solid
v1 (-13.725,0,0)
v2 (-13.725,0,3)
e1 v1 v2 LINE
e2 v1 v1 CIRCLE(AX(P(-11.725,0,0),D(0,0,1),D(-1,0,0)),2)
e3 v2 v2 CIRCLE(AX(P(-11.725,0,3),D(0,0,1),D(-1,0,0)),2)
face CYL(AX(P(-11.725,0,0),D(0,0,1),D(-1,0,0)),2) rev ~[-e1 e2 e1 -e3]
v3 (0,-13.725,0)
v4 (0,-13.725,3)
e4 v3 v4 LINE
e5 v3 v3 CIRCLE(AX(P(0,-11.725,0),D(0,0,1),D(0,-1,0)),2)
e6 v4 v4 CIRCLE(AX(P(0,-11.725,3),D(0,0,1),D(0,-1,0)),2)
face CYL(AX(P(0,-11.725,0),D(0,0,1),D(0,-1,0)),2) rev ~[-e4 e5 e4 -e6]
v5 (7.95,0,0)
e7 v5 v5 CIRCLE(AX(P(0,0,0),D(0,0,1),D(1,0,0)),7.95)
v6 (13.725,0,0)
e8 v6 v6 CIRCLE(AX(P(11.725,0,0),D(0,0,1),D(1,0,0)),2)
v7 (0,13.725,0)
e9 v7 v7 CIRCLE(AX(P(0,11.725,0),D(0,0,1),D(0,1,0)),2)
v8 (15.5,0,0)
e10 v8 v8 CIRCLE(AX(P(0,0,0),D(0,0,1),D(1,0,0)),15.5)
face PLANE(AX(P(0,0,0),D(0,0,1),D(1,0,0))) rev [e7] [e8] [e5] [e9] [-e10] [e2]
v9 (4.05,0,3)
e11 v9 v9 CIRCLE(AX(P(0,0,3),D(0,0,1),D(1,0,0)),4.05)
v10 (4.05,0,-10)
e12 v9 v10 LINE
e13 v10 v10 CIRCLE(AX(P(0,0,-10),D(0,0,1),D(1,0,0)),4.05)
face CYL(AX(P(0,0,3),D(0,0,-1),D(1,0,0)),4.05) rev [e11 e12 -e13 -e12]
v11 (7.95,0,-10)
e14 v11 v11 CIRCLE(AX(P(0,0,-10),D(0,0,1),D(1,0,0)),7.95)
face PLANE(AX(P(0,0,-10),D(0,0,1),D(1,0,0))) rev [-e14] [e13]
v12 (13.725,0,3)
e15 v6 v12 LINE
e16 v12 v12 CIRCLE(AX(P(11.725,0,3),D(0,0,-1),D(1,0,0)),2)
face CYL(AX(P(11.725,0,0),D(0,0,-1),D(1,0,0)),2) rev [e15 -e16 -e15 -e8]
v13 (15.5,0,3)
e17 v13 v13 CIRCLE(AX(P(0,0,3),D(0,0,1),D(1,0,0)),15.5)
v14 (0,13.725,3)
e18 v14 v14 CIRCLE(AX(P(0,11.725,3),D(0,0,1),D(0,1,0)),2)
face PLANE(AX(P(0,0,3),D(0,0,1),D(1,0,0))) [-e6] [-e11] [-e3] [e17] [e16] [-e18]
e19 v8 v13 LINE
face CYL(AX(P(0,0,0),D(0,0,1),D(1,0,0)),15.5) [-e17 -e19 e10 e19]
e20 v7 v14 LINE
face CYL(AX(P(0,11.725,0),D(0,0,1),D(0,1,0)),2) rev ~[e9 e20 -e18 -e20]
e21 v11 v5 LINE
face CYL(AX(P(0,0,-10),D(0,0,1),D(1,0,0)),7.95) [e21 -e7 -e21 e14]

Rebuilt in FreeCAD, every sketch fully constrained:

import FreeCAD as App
import Part
import Sketcher
from FreeCAD import Vector
Q = App.Units.Quantity


def add_polygon(sketch, points):
    """Adds a closed chain of lines whose ends are joined by coincident constraints."""
    first, n = sketch.GeometryCount, len(points)
    for a, b in zip(points, points[1:] + points[:1]):
        sketch.addGeometry(Part.LineSegment(App.Vector(*a, 0), App.Vector(*b, 0)), False)
    for i in range(n):
        sketch.addConstraint(Sketcher.Constraint("Coincident", first + i, 2, first + (i + 1) % n, 1))

doc = App.newDocument("Part")
params = doc.addObject("Spreadsheet::Sheet", "Params")
for row, (alias, value) in enumerate([
    ("sketch1_height", "13 mm"),
    ("sketch1_height2", "10 mm"),
    ("sketch1_width", "3.9 mm"),
    ("sketch1_width2", "7.55 mm"),
    ("revolution_angle", "360 deg"),
    ("sketch2_diameter", "4 mm"),
], start=1):
    params.set(f"A{row}", alias)
    params.set(f"B{row}", "=" + value)
    params.setAlias(f"B{row}", alias)

body = doc.addObject("PartDesign::Body", "Body")

sketch1 = body.newObject("Sketcher::SketchObject", "Sketch")
sketch1.AttachmentSupport = (doc.getObject("XZ_Plane"), [""])
sketch1.MapMode = "FlatFace"
add_polygon(sketch1, [(4, 3), (4, -10), (8, -10), (8, 0), (15.5, 0), (15.5, 3)])
sketch1.addConstraint([
    Sketcher.Constraint("Vertical", 0),
    Sketcher.Constraint("Horizontal", 1),
    Sketcher.Constraint("Vertical", 2),
    Sketcher.Constraint("Horizontal", 3),
    Sketcher.Constraint("Vertical", 4),
    Sketcher.Constraint("Horizontal", 5),
    Sketcher.Constraint("PointOnObject", 2, 2, -1),
    Sketcher.Constraint("DistanceY", 0, 2, 0, 1, Q("13 mm")),
    Sketcher.Constraint("DistanceY", 2, 1, 2, 2, Q("10 mm")),
    Sketcher.Constraint("DistanceX", 1, 1, 1, 2, Q("3.9 mm")),
    Sketcher.Constraint("DistanceX", 3, 1, 3, 2, Q("7.55 mm")),
    Sketcher.Constraint("DistanceX", -1, 1, 3, 2, Q("15.5 mm")),
])
sketch1.setExpression("Constraints[13]", "Params.sketch1_height")
sketch1.setExpression("Constraints[14]", "Params.sketch1_height2")
sketch1.setExpression("Constraints[15]", "Params.sketch1_width")
sketch1.setExpression("Constraints[16]", "Params.sketch1_width2")
revolution = body.newObject("PartDesign::Revolution", "Revolution")
revolution.Profile = sketch1
revolution.ReferenceAxis = (sketch1, ["V_Axis"])
revolution.setExpression("Angle", "Params.revolution_angle")

sketch2 = body.newObject("Sketcher::SketchObject", "Sketch001")
sketch2.AttachmentSupport = (doc.getObject("XY_Plane"), [""])
sketch2.MapMode = "FlatFace"
sketch2.addGeometry(Part.Circle(Vector(11.7, 0, 0), Vector(0, 0, 1), 2), False)
sketch2.addConstraint([
    Sketcher.Constraint("PointOnObject", 0, 3, -1),
    Sketcher.Constraint("Diameter", 0, Q("4 mm")),
    Sketcher.Constraint("DistanceX", -1, 1, 0, 3, Q("11.725 mm")),
])
sketch2.setExpression("Constraints[1]", "Params.sketch2_diameter")
pocket1 = body.newObject("PartDesign::Pocket", "Pocket")
pocket1.Profile = sketch2
pocket1.Type = "ThroughAll"
pocket1.Midplane = True
doc.recompute()

polarpattern = body.newObject("PartDesign::PolarPattern", "PolarPattern")
polarpattern.Originals = [pocket1]
polarpattern.Axis = (doc.getObject("Z_Axis"), [""])
polarpattern.Angle = 360
polarpattern.Occurrences = 4
body.Tip = polarpattern

doc.recompute()
